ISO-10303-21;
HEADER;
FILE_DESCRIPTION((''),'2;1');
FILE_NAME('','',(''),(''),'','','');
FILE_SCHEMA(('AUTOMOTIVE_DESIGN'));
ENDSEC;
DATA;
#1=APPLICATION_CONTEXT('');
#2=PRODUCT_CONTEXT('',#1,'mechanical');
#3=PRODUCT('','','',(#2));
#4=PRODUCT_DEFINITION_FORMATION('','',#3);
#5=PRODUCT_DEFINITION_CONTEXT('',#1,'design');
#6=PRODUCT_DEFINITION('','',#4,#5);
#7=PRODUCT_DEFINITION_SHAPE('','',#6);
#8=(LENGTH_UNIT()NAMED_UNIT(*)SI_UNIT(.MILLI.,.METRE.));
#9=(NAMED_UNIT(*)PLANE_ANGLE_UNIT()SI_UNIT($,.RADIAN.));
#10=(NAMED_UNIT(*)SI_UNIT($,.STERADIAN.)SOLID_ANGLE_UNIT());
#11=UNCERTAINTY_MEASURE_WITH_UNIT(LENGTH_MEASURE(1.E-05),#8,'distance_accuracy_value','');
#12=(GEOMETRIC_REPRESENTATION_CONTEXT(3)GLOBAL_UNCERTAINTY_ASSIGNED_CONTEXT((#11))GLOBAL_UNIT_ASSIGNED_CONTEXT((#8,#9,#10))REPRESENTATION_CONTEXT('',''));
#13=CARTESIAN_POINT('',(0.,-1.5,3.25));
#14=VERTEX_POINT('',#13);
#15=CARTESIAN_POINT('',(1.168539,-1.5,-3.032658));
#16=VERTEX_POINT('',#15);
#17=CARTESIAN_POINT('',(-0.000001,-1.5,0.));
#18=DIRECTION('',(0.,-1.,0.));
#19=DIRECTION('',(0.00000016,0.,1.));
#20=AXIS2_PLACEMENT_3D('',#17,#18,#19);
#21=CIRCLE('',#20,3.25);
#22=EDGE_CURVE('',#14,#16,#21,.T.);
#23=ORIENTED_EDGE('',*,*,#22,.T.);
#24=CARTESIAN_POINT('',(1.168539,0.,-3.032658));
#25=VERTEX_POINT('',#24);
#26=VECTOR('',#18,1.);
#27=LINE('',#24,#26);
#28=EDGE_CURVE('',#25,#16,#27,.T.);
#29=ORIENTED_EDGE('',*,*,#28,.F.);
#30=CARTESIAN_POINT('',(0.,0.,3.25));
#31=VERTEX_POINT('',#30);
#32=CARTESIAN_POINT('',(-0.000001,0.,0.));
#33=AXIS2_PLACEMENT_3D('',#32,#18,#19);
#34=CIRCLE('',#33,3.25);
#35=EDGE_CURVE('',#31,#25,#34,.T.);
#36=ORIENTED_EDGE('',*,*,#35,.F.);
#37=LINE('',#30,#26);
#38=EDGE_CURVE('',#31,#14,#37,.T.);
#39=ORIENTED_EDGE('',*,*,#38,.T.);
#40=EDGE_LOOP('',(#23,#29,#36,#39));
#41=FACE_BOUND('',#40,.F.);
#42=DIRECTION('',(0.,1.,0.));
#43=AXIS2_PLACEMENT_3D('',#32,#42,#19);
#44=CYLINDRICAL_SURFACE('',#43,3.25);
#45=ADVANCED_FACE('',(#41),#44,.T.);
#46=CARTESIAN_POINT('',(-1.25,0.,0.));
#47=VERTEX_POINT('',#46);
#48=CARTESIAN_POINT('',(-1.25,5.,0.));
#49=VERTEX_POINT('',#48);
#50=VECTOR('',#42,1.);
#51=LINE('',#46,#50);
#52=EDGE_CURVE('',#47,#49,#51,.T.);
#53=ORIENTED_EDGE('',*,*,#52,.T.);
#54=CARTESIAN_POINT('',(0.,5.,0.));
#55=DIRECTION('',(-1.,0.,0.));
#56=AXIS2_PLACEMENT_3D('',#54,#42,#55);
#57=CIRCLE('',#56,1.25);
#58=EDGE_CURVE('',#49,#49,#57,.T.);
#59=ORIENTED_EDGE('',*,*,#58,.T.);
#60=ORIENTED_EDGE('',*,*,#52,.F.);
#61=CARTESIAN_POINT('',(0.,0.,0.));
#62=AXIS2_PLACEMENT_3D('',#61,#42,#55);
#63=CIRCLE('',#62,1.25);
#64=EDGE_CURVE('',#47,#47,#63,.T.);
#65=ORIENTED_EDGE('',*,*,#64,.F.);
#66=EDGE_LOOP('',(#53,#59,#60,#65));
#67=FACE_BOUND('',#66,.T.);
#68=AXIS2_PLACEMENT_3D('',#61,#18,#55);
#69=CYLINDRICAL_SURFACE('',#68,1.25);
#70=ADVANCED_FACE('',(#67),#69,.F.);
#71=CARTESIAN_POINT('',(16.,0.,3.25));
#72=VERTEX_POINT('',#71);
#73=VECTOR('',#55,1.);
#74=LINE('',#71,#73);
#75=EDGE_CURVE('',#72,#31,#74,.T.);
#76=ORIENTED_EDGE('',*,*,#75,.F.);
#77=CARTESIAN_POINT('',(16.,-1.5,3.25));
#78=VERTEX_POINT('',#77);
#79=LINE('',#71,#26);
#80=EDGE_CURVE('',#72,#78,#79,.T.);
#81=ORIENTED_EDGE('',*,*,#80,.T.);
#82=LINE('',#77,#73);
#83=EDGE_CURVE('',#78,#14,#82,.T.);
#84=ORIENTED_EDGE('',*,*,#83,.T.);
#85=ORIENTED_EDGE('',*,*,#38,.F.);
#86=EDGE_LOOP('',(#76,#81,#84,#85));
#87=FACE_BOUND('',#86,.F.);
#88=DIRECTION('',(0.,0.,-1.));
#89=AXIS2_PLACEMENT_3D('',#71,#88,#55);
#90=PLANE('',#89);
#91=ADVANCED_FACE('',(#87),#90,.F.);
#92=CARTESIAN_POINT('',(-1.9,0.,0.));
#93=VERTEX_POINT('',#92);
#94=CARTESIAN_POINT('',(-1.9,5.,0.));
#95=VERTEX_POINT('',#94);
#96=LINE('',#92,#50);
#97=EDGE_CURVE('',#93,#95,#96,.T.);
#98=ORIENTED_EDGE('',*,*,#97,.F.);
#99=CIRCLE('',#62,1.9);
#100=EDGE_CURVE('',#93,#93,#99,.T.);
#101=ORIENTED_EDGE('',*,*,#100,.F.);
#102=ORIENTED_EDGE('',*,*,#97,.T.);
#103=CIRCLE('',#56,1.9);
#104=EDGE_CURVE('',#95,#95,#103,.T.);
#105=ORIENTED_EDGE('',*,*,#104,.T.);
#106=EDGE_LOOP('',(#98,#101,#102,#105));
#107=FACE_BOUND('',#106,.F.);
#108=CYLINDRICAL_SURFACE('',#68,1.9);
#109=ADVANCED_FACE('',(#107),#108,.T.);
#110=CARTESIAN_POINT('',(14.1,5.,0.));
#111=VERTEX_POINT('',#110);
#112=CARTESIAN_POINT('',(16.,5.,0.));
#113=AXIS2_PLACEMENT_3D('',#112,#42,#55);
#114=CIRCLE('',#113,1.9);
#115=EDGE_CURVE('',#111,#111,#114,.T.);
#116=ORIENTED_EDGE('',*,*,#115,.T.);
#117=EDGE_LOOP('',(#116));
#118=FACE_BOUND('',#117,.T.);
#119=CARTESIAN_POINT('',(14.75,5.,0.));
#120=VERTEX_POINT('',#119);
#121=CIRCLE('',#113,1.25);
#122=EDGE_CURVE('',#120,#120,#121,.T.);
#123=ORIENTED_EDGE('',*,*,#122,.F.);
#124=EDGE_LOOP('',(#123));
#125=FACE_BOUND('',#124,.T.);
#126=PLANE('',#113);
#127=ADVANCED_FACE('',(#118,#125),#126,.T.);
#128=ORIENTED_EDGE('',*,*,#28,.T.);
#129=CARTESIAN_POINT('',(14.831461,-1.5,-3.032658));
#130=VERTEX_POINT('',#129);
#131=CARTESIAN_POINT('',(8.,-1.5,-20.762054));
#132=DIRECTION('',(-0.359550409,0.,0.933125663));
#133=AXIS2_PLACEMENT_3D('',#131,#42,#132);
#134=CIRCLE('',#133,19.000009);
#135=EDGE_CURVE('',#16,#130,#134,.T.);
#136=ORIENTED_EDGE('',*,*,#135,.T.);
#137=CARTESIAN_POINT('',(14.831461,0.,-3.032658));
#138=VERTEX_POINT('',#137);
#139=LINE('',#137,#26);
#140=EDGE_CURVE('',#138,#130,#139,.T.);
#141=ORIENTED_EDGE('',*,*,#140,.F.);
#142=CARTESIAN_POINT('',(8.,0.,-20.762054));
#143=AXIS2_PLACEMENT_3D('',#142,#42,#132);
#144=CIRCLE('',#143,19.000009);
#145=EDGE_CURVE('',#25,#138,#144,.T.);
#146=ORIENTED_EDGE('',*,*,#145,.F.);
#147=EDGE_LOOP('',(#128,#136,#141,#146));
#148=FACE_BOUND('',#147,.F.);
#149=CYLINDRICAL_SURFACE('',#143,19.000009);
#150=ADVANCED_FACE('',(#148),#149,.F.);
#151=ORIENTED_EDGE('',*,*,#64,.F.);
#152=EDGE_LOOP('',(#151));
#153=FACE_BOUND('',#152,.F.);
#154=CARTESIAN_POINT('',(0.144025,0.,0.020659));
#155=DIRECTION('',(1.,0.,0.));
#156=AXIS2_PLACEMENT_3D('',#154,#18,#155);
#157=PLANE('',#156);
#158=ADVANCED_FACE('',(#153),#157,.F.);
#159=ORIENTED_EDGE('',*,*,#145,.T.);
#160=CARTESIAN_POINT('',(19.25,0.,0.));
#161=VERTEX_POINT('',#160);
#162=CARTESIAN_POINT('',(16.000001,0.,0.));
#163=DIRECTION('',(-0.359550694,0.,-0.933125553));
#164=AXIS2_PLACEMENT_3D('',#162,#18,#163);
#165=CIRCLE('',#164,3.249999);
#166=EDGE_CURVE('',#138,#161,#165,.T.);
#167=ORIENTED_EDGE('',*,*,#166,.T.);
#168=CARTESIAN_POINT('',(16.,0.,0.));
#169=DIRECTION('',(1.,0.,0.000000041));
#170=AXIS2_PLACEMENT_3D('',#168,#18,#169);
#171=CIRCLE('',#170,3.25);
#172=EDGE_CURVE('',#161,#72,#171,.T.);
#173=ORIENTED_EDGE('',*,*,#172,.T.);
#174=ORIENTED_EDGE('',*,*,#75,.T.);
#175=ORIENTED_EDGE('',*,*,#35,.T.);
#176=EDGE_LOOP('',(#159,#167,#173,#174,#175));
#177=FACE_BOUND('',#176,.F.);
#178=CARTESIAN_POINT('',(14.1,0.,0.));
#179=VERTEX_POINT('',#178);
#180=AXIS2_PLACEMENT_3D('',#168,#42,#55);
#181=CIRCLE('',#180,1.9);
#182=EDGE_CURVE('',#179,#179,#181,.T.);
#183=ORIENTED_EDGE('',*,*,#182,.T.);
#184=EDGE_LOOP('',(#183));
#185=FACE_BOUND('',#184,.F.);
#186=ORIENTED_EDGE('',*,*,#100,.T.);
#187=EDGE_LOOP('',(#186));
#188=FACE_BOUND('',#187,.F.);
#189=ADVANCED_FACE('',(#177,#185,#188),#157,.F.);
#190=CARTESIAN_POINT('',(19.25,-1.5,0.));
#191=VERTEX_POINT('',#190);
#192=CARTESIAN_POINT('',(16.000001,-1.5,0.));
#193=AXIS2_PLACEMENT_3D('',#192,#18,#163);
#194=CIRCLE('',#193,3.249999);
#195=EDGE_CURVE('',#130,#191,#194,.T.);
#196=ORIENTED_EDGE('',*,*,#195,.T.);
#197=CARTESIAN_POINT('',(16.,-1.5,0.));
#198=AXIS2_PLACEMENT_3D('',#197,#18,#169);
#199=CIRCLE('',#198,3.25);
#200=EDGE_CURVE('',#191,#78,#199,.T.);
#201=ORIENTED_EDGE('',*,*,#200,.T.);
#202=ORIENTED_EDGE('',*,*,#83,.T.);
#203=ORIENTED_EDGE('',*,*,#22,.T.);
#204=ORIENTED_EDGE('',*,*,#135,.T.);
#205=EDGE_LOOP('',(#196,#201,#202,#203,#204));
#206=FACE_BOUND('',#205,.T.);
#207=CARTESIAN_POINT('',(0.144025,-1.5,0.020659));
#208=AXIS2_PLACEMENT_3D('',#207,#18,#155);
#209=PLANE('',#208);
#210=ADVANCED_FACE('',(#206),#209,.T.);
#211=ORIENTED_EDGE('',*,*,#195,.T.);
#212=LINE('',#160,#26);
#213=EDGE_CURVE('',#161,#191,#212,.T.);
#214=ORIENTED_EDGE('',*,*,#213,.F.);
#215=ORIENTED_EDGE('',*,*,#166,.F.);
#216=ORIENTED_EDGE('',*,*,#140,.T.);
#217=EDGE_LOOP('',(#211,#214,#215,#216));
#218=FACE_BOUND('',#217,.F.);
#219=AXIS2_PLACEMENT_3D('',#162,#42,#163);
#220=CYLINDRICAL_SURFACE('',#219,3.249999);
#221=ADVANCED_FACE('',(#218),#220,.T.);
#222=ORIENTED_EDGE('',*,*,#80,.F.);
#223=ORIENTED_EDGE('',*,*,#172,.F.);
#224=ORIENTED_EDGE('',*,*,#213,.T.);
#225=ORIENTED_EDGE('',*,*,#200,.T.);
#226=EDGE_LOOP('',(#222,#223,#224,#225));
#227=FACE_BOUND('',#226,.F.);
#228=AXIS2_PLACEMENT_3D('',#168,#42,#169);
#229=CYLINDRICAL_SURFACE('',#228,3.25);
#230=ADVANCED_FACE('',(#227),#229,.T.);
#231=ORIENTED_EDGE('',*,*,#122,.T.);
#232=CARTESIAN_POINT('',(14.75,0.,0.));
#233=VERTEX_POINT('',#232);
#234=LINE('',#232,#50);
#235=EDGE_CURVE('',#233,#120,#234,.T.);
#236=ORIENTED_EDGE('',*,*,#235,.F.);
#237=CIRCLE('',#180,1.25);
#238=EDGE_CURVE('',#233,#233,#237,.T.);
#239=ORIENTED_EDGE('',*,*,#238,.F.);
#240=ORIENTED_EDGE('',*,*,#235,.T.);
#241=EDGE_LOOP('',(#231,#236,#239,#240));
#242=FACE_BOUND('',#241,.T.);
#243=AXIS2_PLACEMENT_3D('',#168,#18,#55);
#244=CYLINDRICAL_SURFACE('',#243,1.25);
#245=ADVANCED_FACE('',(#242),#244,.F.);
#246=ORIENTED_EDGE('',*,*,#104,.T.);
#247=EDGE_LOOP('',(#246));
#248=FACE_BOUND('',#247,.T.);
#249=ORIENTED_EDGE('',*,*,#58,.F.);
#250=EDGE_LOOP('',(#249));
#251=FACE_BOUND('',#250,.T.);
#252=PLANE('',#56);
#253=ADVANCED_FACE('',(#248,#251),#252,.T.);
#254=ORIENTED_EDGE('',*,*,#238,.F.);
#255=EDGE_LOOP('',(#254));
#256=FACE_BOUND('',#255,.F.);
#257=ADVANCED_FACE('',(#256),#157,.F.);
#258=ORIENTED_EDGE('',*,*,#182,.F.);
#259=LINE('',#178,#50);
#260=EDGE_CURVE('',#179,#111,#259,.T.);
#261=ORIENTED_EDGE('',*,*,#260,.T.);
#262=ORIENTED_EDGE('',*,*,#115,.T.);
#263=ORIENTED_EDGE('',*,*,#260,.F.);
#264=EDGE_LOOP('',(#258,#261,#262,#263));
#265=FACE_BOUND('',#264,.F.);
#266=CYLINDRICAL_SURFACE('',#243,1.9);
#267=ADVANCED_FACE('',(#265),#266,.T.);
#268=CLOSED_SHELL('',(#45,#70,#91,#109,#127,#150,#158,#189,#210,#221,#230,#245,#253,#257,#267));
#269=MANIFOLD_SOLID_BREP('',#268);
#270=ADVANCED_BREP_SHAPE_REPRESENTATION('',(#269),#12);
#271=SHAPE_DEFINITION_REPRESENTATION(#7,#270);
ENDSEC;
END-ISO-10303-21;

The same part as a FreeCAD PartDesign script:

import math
import FreeCAD as App
import Part
import Sketcher

V = App.Vector

doc = App.newDocument("Part")
params = doc.addObject("Spreadsheet::Sheet", "Params")
for row, (alias, value) in enumerate([
    ("sketch1_width", "16 mm"),
    ("sketch1_radius", "3.25 mm"),
    ("pad1_length", "1.5 mm"),
    ("sketch2_diameter", "3.8 mm"),
    ("sketch2_diameter2", "2.5 mm"),
    ("pad2_length", "5 mm"),
], start=1):
    params.set(f"A{row}", alias)
    params.set(f"B{row}", "=" + value)
    params.setAlias(f"B{row}", alias)

body = doc.addObject("PartDesign::Body", "Body")

# Sketch on XZ plane
sketch1 = doc.addObject("Sketcher::SketchObject", "Sketch")
body.addObject(sketch1)
sketch1.AttachmentSupport = (doc.XZ_Plane, [""])
sketch1.MapMode = "FlatFace"
sketch1.addGeometry(Part.ArcOfCircle(Part.Circle(V(0, 0, 0), V(0, 0, 1), 3.2), math.radians(90), math.radians(291)), False)
sketch1.addGeometry(Part.ArcOfCircle(Part.Circle(V(8, -20.8, 0), V(0, 0, 1), 19), math.radians(69), math.radians(111)), False)
sketch1.addGeometry(Part.ArcOfCircle(Part.Circle(V(16, 0, 0), V(0, 0, 1), 3.2), math.radians(-111), math.radians(0)), False)
sketch1.addGeometry(Part.ArcOfCircle(Part.Circle(V(16, 0, 0), V(0, 0, 1), 3.3), math.radians(0), math.radians(90)), False)
sketch1.addGeometry(Part.LineSegment(V(16, 3.2, 0), V(0, 3.2, 0)), False)
sketch1.addConstraint(Sketcher.Constraint("Tangent", 0, 2, 1, 2))
sketch1.addConstraint(Sketcher.Constraint("Tangent", 1, 1, 2, 1))
sketch1.addConstraint(Sketcher.Constraint("Tangent", 2, 2, 3, 1))
sketch1.addConstraint(Sketcher.Constraint("Tangent", 3, 2, 4, 1))
sketch1.addConstraint(Sketcher.Constraint("Tangent", 4, 2, 0, 1))
sketch1.addConstraint(Sketcher.Constraint("Horizontal", 4))
sketch1.addConstraint(Sketcher.Constraint("Coincident", 0, 3, -1, 1))
sketch1.addConstraint(Sketcher.Constraint("Equal", 0, 2))
sketch1.addConstraint(Sketcher.Constraint("Equal", 2, 3))
sketch1.addConstraint(Sketcher.Constraint("PointOnObject", 2, 2, -1))
sketch1.addConstraint(Sketcher.Constraint("DistanceX", 4, 2, 4, 1, 16.0))
sketch1.addConstraint(Sketcher.Constraint("Radius", 0, 3.25))
sketch1.addConstraint(Sketcher.Constraint("Radius", 1, 19.000009))
sketch1.setExpression("Constraints[10]", "Params.sketch1_width")
sketch1.setExpression("Constraints[11]", "Params.sketch1_radius")
pad1 = doc.addObject("PartDesign::Pad", "Pad")
body.addObject(pad1)
pad1.Profile = sketch1
pad1.setExpression("Length", "Params.pad1_length")

# Sketch on XZ plane
sketch2 = doc.addObject("Sketcher::SketchObject", "Sketch001")
body.addObject(sketch2)
sketch2.AttachmentSupport = (doc.XZ_Plane, [""])
sketch2.MapMode = "FlatFace"
sketch2.addGeometry(Part.Circle(V(16, 0, 0), V(0, 0, 1), 1.9), False)
sketch2.addGeometry(Part.Circle(V(16, 0, 0), V(0, 0, 1), 1.2), False)
sketch2.addGeometry(Part.Circle(V(0, 0, 0), V(0, 0, 1), 1.9), False)
sketch2.addGeometry(Part.Circle(V(0, 0, 0), V(0, 0, 1), 1.2), False)
sketch2.addConstraint(Sketcher.Constraint("Coincident", 2, 3, -1, 1))
sketch2.addConstraint(Sketcher.Constraint("Coincident", 3, 3, -1, 1))
sketch2.addConstraint(Sketcher.Constraint("Coincident", 1, 3, 0, 3))
sketch2.addConstraint(Sketcher.Constraint("Equal", 0, 2))
sketch2.addConstraint(Sketcher.Constraint("Equal", 1, 3))
sketch2.addConstraint(Sketcher.Constraint("PointOnObject", 0, 3, -1))
sketch2.addConstraint(Sketcher.Constraint("Diameter", 0, 3.8))
sketch2.addConstraint(Sketcher.Constraint("Diameter", 1, 2.5))
sketch2.addConstraint(Sketcher.Constraint("DistanceX", -1, 1, 0, 3, 16.0))
sketch2.setExpression("Constraints[6]", "Params.sketch2_diameter")
sketch2.setExpression("Constraints[7]", "Params.sketch2_diameter2")
pad2 = doc.addObject("PartDesign::Pad", "Pad001")
body.addObject(pad2)
pad2.Profile = sketch2
pad2.setExpression("Length", "Params.pad2_length")
pad2.Reversed = True

doc.recompute()
